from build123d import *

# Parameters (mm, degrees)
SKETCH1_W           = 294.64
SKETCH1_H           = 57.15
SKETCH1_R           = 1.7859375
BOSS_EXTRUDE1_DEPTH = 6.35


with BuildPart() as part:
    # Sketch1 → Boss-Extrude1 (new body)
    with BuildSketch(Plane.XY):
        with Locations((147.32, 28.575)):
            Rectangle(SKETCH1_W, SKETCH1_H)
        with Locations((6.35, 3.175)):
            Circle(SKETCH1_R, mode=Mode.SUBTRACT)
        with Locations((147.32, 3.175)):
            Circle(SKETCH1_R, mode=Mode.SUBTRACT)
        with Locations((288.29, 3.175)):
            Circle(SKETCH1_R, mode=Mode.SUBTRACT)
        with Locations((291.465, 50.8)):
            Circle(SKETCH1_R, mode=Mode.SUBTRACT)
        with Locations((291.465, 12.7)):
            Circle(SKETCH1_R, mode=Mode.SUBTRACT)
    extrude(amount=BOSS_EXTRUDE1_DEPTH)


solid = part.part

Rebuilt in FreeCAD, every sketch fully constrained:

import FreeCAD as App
import Part
import Sketcher
Q = App.Units.Quantity

doc = App.newDocument("Part")
body = doc.addObject("PartDesign::Body", "Body")

# Sketch on XY plane
sketch1 = body.newObject("Sketcher::SketchObject", "Sketch")
sketch1.AttachmentSupport = (doc.getObject("XY_Plane"), [""])
sketch1.MapMode = "FlatFace"
sketch1.addGeometry(Part.LineSegment(App.Vector(0, 57.15, 0), App.Vector(0, 0, 0)), False)
sketch1.addGeometry(Part.LineSegment(App.Vector(0, 0, 0), App.Vector(294.64, 0, 0)), False)
sketch1.addGeometry(Part.LineSegment(App.Vector(294.64, 0, 0), App.Vector(294.64, 57.15, 0)), False)
sketch1.addGeometry(Part.LineSegment(App.Vector(294.64, 57.15, 0), App.Vector(0, 57.15, 0)), False)
sketch1.addGeometry(Part.Circle(App.Vector(6.35, 3.175, 0), App.Vector(0, 0, 1), 1.785937), False)
sketch1.addGeometry(Part.Circle(App.Vector(147.32, 3.175, 0), App.Vector(0, 0, 1), 1.785937), False)
sketch1.addGeometry(Part.Circle(App.Vector(288.29, 3.175, 0), App.Vector(0, 0, 1), 1.785937), False)
sketch1.addGeometry(Part.Circle(App.Vector(291.465, 12.7, 0), App.Vector(0, 0, 1), 1.785937), False)
sketch1.addGeometry(Part.Circle(App.Vector(291.465, 50.8, 0), App.Vector(0, 0, 1), 1.785937), False)
sketch1.addConstraint(Sketcher.Constraint("Coincident", 0, 2, 1, 1))
sketch1.addConstraint(Sketcher.Constraint("Coincident", 1, 2, 2, 1))
sketch1.addConstraint(Sketcher.Constraint("Coincident", 2, 2, 3, 1))
sketch1.addConstraint(Sketcher.Constraint("Coincident", 3, 2, 0, 1))
sketch1.addConstraint(Sketcher.Constraint("Vertical", 0))
sketch1.addConstraint(Sketcher.Constraint("Horizontal", 1))
sketch1.addConstraint(Sketcher.Constraint("Vertical", 2))
sketch1.addConstraint(Sketcher.Constraint("Horizontal", 3))
sketch1.addConstraint(Sketcher.Constraint("Coincident", 0, 2, -1, 1))
sketch1.addConstraint(Sketcher.Constraint("Equal", 4, 5))
sketch1.addConstraint(Sketcher.Constraint("Equal", 5, 6))
sketch1.addConstraint(Sketcher.Constraint("Equal", 6, 7))
sketch1.addConstraint(Sketcher.Constraint("Equal", 7, 8))
sketch1.addConstraint(Sketcher.Constraint("Horizontal", 4, 3, 5, 3))
sketch1.addConstraint(Sketcher.Constraint("Horizontal", 5, 3, 6, 3))
sketch1.addConstraint(Sketcher.Constraint("Vertical", 7, 3, 8, 3))
sketch1.addConstraint(Sketcher.Constraint("Diameter", 4, Q("0.140625 in")))
sketch1.addConstraint(Sketcher.Constraint("DistanceX", 1, 1, 1, 2, Q("11.6 in")))
sketch1.addConstraint(Sketcher.Constraint("DistanceY", -1, 1, 8, 3, Q("2 in")))
sketch1.addConstraint(Sketcher.Constraint("DistanceY", 0, 2, 0, 1, Q("2.25 in")))
sketch1.addConstraint(Sketcher.Constraint("DistanceX", -1, 1, 5, 3, Q("5.8 in")))
sketch1.addConstraint(Sketcher.Constraint("DistanceY", -1, 1, 7, 3, Q("0.5 in")))
sketch1.addConstraint(Sketcher.Constraint("DistanceX", 4, 3, 6, 3, Q("11.1 in")))
sketch1.addConstraint(Sketcher.Constraint("DistanceX", -1, 1, 4, 3, Q("0.25 in")))
sketch1.addConstraint(Sketcher.Constraint("DistanceY", -1, 1, 4, 3, Q("0.125 in")))
sketch1.addConstraint(Sketcher.Constraint("DistanceX", -1, 1, 7, 3, Q("11.475 in")))
pad1 = body.newObject("PartDesign::Pad", "Pad")
pad1.Profile = sketch1
pad1.Length = Q("0.25 in")

doc.recompute()
